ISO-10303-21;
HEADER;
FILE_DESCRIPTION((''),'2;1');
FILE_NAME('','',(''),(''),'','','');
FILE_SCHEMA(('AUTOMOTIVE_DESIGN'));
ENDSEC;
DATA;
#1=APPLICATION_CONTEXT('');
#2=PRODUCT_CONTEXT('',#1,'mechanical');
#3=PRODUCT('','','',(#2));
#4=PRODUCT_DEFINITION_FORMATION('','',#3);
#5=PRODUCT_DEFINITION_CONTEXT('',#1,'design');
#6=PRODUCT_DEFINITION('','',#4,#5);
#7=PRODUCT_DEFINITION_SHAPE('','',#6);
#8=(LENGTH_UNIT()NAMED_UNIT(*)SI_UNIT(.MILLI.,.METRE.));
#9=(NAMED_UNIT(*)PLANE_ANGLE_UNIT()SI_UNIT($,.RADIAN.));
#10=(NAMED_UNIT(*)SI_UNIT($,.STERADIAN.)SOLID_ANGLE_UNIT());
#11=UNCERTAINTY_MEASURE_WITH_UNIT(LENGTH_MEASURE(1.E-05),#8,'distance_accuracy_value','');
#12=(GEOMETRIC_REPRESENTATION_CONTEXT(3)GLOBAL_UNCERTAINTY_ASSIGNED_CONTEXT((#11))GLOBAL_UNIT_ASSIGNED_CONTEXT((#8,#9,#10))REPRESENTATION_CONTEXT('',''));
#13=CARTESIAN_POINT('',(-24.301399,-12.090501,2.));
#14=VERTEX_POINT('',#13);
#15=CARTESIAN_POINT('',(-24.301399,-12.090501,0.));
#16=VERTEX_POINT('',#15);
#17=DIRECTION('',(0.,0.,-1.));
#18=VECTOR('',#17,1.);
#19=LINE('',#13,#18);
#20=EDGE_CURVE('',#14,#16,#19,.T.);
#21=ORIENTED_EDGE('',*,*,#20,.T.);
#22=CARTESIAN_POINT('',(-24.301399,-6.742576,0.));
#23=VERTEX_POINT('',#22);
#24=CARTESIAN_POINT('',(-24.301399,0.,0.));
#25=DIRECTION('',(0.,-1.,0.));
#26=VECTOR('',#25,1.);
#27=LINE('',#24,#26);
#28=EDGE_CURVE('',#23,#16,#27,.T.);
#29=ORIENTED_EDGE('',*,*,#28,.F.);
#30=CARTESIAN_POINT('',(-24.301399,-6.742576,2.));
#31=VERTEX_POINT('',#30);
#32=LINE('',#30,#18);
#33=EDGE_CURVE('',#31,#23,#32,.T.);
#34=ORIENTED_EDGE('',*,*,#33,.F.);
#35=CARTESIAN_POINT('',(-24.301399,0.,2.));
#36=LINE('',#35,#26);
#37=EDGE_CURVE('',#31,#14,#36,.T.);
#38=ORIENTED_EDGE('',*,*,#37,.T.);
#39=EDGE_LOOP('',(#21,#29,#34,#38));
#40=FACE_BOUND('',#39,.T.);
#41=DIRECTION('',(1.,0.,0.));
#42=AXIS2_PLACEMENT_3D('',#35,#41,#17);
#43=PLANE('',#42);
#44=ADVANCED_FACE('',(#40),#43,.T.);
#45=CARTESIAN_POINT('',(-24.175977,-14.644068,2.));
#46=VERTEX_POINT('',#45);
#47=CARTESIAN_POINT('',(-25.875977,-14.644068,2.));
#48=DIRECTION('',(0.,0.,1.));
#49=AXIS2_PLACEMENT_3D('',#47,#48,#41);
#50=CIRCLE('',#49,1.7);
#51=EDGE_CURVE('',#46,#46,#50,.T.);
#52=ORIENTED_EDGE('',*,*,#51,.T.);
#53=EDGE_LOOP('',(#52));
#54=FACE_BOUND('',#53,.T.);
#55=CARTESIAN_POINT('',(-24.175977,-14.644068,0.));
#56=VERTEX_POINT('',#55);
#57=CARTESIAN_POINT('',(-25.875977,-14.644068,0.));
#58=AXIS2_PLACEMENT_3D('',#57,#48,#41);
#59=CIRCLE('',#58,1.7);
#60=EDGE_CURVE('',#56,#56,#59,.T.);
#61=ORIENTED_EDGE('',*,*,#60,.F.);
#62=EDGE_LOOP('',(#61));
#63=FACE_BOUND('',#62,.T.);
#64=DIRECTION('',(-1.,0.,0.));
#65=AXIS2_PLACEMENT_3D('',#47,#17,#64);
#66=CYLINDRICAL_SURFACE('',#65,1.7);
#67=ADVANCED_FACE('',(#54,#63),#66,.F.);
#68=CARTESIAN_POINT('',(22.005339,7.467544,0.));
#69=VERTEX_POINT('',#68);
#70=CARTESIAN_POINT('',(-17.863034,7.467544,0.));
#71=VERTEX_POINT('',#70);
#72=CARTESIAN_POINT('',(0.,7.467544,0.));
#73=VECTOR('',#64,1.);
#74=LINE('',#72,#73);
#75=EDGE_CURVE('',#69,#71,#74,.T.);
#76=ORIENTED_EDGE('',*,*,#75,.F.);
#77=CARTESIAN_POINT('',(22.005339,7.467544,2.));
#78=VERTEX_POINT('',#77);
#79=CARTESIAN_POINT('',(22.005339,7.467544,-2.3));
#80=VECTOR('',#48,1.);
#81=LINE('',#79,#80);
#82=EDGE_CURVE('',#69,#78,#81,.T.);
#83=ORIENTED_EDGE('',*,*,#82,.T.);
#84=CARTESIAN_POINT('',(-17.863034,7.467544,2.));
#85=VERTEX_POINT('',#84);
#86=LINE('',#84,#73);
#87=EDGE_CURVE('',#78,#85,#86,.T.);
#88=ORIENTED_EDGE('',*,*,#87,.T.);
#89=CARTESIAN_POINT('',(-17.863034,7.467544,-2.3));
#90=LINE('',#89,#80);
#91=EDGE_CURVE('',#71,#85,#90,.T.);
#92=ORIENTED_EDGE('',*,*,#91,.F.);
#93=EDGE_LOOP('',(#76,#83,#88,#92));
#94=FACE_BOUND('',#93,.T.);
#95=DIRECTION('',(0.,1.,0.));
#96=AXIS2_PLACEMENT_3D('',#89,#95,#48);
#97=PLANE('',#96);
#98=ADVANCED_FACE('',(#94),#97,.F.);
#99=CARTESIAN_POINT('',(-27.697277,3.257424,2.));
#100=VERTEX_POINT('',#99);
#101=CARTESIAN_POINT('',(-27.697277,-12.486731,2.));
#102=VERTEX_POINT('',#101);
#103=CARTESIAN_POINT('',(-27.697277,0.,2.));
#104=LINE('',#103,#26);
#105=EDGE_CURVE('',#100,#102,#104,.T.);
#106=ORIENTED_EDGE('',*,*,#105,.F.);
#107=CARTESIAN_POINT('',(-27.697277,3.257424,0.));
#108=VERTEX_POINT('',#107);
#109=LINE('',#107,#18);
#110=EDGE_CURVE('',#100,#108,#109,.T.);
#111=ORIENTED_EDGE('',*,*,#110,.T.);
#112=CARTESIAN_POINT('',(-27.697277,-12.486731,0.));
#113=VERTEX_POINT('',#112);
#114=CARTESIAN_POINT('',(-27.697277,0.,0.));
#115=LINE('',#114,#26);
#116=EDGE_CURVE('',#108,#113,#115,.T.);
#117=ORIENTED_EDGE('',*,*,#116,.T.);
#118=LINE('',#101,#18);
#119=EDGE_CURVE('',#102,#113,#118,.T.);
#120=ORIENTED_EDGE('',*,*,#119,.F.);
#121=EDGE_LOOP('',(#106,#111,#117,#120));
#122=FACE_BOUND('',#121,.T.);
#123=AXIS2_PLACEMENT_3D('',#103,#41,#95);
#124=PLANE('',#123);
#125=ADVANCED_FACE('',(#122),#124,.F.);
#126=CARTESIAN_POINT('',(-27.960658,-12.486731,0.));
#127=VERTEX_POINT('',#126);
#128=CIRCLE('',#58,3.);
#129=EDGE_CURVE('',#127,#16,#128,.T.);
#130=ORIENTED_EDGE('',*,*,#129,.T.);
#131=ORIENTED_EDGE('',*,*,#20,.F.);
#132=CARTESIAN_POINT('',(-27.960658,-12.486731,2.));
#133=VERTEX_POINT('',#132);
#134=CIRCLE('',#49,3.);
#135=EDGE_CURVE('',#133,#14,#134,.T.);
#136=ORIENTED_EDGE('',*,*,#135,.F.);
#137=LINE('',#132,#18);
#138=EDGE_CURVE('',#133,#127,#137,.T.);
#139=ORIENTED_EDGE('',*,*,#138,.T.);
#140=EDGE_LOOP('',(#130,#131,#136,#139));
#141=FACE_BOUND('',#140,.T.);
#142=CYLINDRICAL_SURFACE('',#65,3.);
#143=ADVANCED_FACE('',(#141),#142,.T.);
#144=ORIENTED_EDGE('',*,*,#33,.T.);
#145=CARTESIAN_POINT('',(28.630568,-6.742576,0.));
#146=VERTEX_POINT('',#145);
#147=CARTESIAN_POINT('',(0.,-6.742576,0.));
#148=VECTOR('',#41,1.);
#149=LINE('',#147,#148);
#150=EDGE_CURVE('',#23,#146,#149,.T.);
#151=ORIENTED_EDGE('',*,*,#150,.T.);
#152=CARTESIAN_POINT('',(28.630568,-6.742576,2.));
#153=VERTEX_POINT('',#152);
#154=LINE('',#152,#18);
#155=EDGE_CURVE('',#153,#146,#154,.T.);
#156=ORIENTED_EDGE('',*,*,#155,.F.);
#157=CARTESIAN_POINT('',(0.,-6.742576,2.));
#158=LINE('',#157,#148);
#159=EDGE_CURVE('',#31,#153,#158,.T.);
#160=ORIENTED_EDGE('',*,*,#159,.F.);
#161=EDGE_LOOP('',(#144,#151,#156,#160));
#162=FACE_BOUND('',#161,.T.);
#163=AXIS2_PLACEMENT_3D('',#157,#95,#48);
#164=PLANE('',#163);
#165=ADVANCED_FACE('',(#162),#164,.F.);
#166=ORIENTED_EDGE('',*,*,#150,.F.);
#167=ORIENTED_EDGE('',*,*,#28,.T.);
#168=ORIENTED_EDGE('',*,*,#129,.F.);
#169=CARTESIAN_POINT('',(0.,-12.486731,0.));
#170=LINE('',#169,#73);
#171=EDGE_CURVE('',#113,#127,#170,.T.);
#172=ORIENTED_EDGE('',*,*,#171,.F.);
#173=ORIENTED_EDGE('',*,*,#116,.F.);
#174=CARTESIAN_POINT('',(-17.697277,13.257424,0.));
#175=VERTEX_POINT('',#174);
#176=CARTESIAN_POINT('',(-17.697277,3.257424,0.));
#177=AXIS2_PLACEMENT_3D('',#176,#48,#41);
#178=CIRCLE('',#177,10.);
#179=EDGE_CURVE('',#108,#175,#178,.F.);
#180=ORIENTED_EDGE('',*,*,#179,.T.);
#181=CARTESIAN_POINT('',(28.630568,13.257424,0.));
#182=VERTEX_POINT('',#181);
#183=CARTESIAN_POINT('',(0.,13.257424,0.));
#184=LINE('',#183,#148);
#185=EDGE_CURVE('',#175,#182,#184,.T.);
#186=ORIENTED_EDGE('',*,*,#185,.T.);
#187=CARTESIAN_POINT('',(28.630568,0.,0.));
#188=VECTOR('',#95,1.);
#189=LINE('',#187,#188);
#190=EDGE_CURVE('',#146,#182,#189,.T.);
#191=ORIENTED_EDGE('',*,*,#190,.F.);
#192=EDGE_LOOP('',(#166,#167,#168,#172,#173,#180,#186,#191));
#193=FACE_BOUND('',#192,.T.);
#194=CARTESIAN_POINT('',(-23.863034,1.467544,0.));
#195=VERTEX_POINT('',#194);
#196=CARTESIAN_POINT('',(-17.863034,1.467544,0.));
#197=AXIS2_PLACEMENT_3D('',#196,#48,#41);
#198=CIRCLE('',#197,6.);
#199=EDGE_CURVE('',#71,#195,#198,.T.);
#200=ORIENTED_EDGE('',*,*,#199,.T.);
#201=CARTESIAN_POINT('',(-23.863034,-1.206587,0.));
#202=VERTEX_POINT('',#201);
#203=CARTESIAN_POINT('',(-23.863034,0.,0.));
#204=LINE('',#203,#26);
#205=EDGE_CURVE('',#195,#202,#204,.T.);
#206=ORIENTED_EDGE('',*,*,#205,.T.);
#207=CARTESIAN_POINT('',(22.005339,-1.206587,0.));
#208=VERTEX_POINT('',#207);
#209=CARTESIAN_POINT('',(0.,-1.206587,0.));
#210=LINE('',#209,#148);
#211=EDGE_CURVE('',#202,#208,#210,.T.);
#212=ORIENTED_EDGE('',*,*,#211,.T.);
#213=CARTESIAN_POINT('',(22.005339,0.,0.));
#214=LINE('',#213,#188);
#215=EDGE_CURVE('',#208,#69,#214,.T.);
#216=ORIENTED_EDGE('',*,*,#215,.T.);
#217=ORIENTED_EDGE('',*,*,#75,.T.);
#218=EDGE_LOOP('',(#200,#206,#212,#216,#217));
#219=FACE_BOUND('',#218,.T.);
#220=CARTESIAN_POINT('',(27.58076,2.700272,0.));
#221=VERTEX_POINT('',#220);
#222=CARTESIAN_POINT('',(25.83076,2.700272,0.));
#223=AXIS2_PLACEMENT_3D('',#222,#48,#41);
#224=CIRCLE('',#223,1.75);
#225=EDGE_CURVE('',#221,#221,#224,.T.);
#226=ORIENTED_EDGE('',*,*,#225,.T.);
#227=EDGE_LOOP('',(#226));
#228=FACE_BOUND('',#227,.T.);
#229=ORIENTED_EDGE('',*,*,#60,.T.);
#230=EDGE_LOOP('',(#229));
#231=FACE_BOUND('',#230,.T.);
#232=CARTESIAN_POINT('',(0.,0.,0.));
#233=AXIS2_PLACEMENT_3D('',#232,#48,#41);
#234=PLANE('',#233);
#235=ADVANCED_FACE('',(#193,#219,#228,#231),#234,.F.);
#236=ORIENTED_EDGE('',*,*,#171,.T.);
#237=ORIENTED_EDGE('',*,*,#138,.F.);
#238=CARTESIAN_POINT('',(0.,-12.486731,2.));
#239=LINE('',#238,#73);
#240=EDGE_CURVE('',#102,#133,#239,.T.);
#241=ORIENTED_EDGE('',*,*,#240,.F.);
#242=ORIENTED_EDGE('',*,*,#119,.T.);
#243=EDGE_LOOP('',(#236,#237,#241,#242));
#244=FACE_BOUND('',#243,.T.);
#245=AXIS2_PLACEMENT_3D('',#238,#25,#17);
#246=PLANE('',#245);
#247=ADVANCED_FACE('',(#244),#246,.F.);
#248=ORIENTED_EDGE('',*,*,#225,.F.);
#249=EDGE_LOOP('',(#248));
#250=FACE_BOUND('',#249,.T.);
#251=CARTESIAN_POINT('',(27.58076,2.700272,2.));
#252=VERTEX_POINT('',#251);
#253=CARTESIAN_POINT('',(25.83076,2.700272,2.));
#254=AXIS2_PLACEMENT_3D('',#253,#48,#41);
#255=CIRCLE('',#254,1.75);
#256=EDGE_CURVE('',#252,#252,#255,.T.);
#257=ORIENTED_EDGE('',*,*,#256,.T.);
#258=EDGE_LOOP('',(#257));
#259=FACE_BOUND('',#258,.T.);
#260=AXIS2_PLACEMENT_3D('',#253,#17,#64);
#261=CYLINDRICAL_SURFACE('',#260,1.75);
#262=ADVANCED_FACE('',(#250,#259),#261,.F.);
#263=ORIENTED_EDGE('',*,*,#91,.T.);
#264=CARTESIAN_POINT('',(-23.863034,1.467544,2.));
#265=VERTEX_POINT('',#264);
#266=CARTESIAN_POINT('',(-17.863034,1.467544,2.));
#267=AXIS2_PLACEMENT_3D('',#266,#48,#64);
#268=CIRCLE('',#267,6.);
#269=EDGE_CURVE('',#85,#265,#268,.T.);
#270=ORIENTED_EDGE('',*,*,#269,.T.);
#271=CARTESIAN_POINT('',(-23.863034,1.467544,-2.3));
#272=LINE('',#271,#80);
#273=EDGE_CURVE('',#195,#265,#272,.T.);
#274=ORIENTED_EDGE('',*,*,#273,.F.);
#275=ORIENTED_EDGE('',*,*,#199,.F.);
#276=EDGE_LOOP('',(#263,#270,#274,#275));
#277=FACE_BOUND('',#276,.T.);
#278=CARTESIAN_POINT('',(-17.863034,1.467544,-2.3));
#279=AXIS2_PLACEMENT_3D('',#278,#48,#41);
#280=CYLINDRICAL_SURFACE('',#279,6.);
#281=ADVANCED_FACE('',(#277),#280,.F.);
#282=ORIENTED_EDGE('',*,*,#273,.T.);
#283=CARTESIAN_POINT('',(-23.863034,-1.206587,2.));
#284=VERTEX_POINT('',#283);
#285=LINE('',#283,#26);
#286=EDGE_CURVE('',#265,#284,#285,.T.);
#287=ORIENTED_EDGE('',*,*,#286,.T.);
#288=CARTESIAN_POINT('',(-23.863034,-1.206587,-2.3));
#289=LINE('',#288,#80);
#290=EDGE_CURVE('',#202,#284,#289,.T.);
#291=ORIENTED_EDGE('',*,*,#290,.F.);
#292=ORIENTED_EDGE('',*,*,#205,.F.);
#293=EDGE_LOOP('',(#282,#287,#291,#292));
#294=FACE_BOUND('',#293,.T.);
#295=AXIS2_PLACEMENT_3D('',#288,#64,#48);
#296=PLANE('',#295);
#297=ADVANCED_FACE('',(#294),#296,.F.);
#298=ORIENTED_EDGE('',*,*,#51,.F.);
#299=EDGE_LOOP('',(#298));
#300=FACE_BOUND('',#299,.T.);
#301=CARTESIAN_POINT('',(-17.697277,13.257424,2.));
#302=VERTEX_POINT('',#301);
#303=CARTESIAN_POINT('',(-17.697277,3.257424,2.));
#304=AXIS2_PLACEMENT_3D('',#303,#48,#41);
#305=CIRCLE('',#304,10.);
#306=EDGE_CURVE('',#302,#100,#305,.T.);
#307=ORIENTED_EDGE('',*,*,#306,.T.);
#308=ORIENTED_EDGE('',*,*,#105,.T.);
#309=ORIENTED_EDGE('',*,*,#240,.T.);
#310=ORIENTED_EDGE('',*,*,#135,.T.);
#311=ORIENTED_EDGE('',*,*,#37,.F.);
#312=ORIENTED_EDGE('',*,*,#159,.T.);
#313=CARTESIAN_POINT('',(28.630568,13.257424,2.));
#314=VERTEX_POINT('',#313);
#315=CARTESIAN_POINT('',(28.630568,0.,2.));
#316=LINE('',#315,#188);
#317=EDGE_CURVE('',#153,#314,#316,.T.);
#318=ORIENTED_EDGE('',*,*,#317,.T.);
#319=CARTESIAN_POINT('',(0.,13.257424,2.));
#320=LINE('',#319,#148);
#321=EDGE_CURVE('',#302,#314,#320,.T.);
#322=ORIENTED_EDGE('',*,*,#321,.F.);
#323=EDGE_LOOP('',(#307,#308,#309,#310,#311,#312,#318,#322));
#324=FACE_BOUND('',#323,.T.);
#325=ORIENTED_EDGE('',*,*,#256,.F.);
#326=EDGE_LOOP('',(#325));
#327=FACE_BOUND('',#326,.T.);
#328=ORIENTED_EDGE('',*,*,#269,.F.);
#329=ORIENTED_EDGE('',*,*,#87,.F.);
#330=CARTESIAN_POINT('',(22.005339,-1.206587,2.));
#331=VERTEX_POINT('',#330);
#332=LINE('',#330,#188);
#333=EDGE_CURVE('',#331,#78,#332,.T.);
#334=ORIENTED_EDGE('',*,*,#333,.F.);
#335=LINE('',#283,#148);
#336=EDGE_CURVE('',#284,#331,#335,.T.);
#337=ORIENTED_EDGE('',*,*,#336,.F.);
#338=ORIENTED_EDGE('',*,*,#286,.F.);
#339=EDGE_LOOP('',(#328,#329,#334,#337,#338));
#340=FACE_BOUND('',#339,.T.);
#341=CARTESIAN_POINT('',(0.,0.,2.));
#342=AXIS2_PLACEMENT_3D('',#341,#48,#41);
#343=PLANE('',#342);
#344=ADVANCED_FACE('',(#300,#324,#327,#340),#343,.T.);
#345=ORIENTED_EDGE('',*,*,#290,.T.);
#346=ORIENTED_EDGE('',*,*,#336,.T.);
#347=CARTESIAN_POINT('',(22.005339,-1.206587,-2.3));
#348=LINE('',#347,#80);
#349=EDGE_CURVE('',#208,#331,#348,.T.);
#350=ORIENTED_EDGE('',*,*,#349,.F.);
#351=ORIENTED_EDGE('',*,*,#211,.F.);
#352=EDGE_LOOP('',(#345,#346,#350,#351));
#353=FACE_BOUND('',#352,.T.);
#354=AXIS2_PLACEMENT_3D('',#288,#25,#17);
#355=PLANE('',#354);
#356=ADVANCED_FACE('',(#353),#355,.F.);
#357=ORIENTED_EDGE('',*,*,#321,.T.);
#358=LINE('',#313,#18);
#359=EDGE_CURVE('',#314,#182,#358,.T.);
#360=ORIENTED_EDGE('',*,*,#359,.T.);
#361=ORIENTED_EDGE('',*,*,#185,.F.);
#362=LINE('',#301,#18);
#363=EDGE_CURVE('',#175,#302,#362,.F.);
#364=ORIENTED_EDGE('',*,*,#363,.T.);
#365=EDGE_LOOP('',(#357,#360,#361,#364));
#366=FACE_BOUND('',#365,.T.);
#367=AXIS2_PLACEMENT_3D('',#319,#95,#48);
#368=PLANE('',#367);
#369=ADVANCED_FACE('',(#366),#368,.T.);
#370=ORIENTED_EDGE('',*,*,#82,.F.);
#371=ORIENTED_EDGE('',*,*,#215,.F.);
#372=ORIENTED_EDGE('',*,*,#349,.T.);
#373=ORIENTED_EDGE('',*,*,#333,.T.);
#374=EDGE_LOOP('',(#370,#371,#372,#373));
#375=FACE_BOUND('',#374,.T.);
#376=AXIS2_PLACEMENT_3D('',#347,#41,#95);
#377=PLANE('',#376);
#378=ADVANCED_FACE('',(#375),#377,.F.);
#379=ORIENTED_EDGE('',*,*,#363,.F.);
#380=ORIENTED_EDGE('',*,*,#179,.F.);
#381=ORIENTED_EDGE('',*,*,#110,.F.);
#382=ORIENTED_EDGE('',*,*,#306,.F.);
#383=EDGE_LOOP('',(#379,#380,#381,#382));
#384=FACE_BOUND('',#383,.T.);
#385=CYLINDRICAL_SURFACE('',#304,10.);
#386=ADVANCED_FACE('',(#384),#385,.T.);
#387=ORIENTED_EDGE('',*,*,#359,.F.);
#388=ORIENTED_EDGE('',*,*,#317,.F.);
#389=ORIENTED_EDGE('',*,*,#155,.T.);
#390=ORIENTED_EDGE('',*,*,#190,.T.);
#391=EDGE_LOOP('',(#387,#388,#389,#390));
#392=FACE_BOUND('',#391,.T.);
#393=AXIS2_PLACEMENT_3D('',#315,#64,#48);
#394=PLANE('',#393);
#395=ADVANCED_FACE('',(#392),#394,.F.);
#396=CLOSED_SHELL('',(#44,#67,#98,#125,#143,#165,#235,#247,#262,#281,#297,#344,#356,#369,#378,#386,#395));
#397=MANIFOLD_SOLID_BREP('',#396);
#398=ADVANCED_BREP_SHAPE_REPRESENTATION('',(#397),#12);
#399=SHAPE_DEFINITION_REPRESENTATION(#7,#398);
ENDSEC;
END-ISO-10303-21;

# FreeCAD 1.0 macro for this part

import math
import FreeCAD as App
import Part
import Sketcher
from FreeCAD import Vector
Q = App.Units.Quantity


def edges_at(feature, points):
    """Names of the edges that pass closest to the given points."""
    edges = feature.Shape.Edges
    near = lambda p: min(range(len(edges)), key=lambda i: edges[i].distToShape(Part.Vertex(*p))[0])
    return sorted({f"Edge{near(p) + 1}" for p in points})

doc = App.newDocument("Part")
body = doc.addObject("PartDesign::Body", "Body")

# Sketch on XY plane
sketch1 = body.newObject("Sketcher::SketchObject", "Sketch")
sketch1.AttachmentSupport = (doc.getObject("XY_Plane"), [""])
sketch1.MapMode = "FlatFace"
sketch1.addGeometry(Part.LineSegment(Vector(-24.301399, -6.742576, 0), Vector(28.630568, -6.742576, 0)), False)
sketch1.addGeometry(Part.LineSegment(Vector(28.630568, -6.742576, 0), Vector(28.630568, 13.257424, 0)), False)
sketch1.addGeometry(Part.LineSegment(Vector(28.630568, 13.257424, 0), Vector(-27.697277, 13.257424, 0)), False)
sketch1.addGeometry(Part.LineSegment(Vector(-27.697277, 13.257424, 0), Vector(-27.697277, -12.486731, 0)), False)
sketch1.addGeometry(Part.LineSegment(Vector(-27.697277, -12.486731, 0), Vector(-27.960658, -12.486731, 0)), False)
sketch1.addGeometry(Part.ArcOfCircle(Part.Circle(Vector(-25.875977, -14.644068, 0), Vector(0, 0, 1), 3), math.radians(134.018739), math.radians(418.34122)), False)
sketch1.addGeometry(Part.LineSegment(Vector(-24.301399, -12.090501, 0), Vector(-24.301399, -6.742576, 0)), False)
sketch1.addGeometry(Part.Circle(Vector(-25.875977, -14.644068, 0), Vector(0, 0, 1), 1.7), False)
sketch1.addGeometry(Part.Circle(Vector(25.83076, 2.700272, 0), Vector(0, 0, 1), 1.75), False)
sketch1.addConstraint(Sketcher.Constraint("Coincident", 0, 2, 1, 1))
sketch1.addConstraint(Sketcher.Constraint("Coincident", 1, 2, 2, 1))
sketch1.addConstraint(Sketcher.Constraint("Coincident", 2, 2, 3, 1))
sketch1.addConstraint(Sketcher.Constraint("Coincident", 3, 2, 4, 1))
sketch1.addConstraint(Sketcher.Constraint("Coincident", 4, 2, 5, 1))
sketch1.addConstraint(Sketcher.Constraint("Coincident", 5, 2, 6, 1))
sketch1.addConstraint(Sketcher.Constraint("Coincident", 6, 2, 0, 1))
sketch1.addConstraint(Sketcher.Constraint("Horizontal", 0))
sketch1.addConstraint(Sketcher.Constraint("Vertical", 1))
sketch1.addConstraint(Sketcher.Constraint("Horizontal", 2))
sketch1.addConstraint(Sketcher.Constraint("Vertical", 3))
sketch1.addConstraint(Sketcher.Constraint("Horizontal", 4))
sketch1.addConstraint(Sketcher.Constraint("Vertical", 6))
sketch1.addConstraint(Sketcher.Constraint("Coincident", 7, 3, 5, 3))
sketch1.addConstraint(Sketcher.Constraint("Radius", 5, Q("3 mm")))
sketch1.addConstraint(Sketcher.Constraint("Diameter", 7, Q("3.4 mm")))
sketch1.addConstraint(Sketcher.Constraint("Diameter", 8, Q("3.5 mm")))
sketch1.addConstraint(Sketcher.Constraint("DistanceY", 1, 1, 1, 2, Q("20 mm")))
sketch1.addConstraint(Sketcher.Constraint("DistanceX", 4, 2, 4, 1, Q("0.263381 mm")))
sketch1.addConstraint(Sketcher.Constraint("DistanceX", 5, 2, -1, 1, Q("24.301399 mm")))
sketch1.addConstraint(Sketcher.Constraint("DistanceY", 5, 2, -1, 1, Q("12.090501 mm")))
sketch1.addConstraint(Sketcher.Constraint("DistanceX", 2, 2, 5, 3, Q("1.821299 mm")))
sketch1.addConstraint(Sketcher.Constraint("DistanceX", 0, 1, 0, 2, Q("52.931968 mm")))
sketch1.addConstraint(Sketcher.Constraint("DistanceX", 2, 2, 2, 1, Q("56.327845 mm")))
sketch1.addConstraint(Sketcher.Constraint("DistanceY", 3, 2, 3, 1, Q("25.744155 mm")))
sketch1.addConstraint(Sketcher.Constraint("DistanceX", -1, 1, 8, 3, Q("25.83076 mm")))
sketch1.addConstraint(Sketcher.Constraint("DistanceY", -1, 1, 8, 3, Q("2.700272 mm")))
pad1 = body.newObject("PartDesign::Pad", "Pad")
pad1.Profile = sketch1
pad1.Length = 2
doc.recompute()

fillet = body.newObject("PartDesign::Fillet", "Fillet")
fillet.Base = (pad1, edges_at(pad1, [(-27.697, 13.257, 1)]))
fillet.Radius = 10

# Sketch on XY plane
sketch2 = body.newObject("Sketcher::SketchObject", "Sketch001")
sketch2.AttachmentSupport = (doc.getObject("XY_Plane"), [""])
sketch2.MapMode = "FlatFace"
sketch2.AttachmentOffset = App.Placement(Vector(0, 0, 2), App.Rotation())
sketch2.addGeometry(Part.LineSegment(Vector(-23.863034, -1.206587, 0), Vector(22.005339, -1.206587, 0)), False)
sketch2.addGeometry(Part.LineSegment(Vector(22.005339, -1.206587, 0), Vector(22.005339, 7.467544, 0)), False)
sketch2.addGeometry(Part.LineSegment(Vector(22.005339, 7.467544, 0), Vector(-17.863034, 7.467544, 0)), False)
sketch2.addGeometry(Part.ArcOfCircle(Part.Circle(Vector(-17.863034, 1.467544, 0), Vector(0, 0, 1), 6), math.radians(90), math.radians(180)), False)
sketch2.addGeometry(Part.LineSegment(Vector(-23.863034, 1.467544, 0), Vector(-23.863034, -1.206587, 0)), False)
sketch2.addConstraint(Sketcher.Constraint("Coincident", 0, 2, 1, 1))
sketch2.addConstraint(Sketcher.Constraint("Coincident", 1, 2, 2, 1))
sketch2.addConstraint(Sketcher.Constraint("Tangent", 2, 2, 3, 1))
sketch2.addConstraint(Sketcher.Constraint("Tangent", 3, 2, 4, 1))
sketch2.addConstraint(Sketcher.Constraint("Coincident", 4, 2, 0, 1))
sketch2.addConstraint(Sketcher.Constraint("Horizontal", 0))
sketch2.addConstraint(Sketcher.Constraint("Vertical", 1))
sketch2.addConstraint(Sketcher.Constraint("Horizontal", 2))
sketch2.addConstraint(Sketcher.Constraint("Vertical", 4))
sketch2.addConstraint(Sketcher.Constraint("Radius", 3, Q("6 mm")))
sketch2.addConstraint(Sketcher.Constraint("DistanceY", 1, 1, 1, 2, Q("8.674131 mm")))
sketch2.addConstraint(Sketcher.Constraint("DistanceX", 0, 1, 0, 2, Q("45.868372 mm")))
sketch2.addConstraint(Sketcher.Constraint("DistanceX", -1, 1, 0, 2, Q("22.005339 mm")))
sketch2.addConstraint(Sketcher.Constraint("DistanceY", -1, 1, 3, 3, Q("1.467544 mm")))
pocket1 = body.newObject("PartDesign::Pocket", "Pocket")
pocket1.Profile = sketch2
pocket1.Length = 4.3

doc.recompute()
